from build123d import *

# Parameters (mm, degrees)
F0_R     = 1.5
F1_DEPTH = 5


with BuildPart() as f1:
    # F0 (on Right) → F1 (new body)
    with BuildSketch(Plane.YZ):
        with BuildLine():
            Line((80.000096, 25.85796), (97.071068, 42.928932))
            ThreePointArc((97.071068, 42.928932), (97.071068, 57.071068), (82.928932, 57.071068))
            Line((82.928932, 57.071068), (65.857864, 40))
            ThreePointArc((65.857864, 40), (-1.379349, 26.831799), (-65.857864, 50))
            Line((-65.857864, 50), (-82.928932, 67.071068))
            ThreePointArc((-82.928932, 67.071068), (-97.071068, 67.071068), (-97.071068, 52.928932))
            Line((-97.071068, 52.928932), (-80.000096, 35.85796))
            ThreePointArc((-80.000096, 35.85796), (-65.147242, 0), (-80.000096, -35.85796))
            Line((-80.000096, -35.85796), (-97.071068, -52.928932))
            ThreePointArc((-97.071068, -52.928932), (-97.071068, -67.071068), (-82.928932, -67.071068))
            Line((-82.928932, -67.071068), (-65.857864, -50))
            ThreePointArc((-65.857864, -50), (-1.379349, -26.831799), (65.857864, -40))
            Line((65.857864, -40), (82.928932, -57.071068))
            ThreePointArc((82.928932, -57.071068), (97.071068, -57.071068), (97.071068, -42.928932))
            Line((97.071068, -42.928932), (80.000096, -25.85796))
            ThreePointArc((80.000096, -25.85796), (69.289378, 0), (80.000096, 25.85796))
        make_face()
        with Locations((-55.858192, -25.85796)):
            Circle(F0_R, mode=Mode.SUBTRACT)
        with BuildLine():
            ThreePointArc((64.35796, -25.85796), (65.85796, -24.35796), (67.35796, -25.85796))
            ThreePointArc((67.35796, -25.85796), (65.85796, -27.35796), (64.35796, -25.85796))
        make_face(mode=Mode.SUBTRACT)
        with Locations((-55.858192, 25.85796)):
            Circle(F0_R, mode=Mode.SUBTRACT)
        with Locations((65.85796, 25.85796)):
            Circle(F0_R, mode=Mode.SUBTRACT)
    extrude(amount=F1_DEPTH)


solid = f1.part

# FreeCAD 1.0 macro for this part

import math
import FreeCAD as App
import Part
import Sketcher

V = App.Vector

doc = App.newDocument("Part")
body = doc.addObject("PartDesign::Body", "Body")

sketch1 = body.newObject("Sketcher::SketchObject", "Sketch")
sketch1.AttachmentSupport = (doc.getObject("YZ_Plane"), [""])
sketch1.MapMode = "FlatFace"
sketch1.addGeometry(Part.LineSegment(V(80, 25.9, 0), V(97.1, 42.9, 0)), False)
sketch1.addGeometry(Part.ArcOfCircle(Part.Circle(V(90, 50, 0), V(0, 0, 1), 10), math.radians(-45), math.radians(135)), False)
sketch1.addGeometry(Part.LineSegment(V(82.9, 57.1, 0), V(65.9, 40, 0)), False)
sketch1.addGeometry(Part.ArcOfCircle(Part.Circle(V(8.4, 155.3, 0), V(0, 0, 1), 128.8), math.radians(-125), math.radians(-63)), False)
sketch1.addGeometry(Part.LineSegment(V(-65.9, 50, 0), V(-82.9, 67.1, 0)), False)
sketch1.addGeometry(Part.ArcOfCircle(Part.Circle(V(-90, 60, 0), V(0, 0, 1), 10), math.radians(45), math.radians(225)), False)
sketch1.addGeometry(Part.LineSegment(V(-97.1, 52.9, 0), V(-80, 35.9, 0)), False)
sketch1.addGeometry(Part.ArcOfCircle(Part.Circle(V(-115.9, 0, 0), V(0, 0, 1), 50.7), math.radians(-45), math.radians(45)), False)
sketch1.addGeometry(Part.LineSegment(V(-80, -35.9, 0), V(-97.1, -52.9, 0)), False)
sketch1.addGeometry(Part.ArcOfCircle(Part.Circle(V(-90, -60, 0), V(0, 0, 1), 10), math.radians(135), math.radians(315)), False)
sketch1.addGeometry(Part.LineSegment(V(-82.9, -67.1, 0), V(-65.9, -50, 0)), False)
sketch1.addGeometry(Part.ArcOfCircle(Part.Circle(V(8.4, -155.3, 0), V(0, 0, 1), 128.8), math.radians(63), math.radians(125)), False)
sketch1.addGeometry(Part.LineSegment(V(65.9, -40, 0), V(82.9, -57.1, 0)), False)
sketch1.addGeometry(Part.ArcOfCircle(Part.Circle(V(90, -50, 0), V(0, 0, 1), 10), math.radians(-135), math.radians(45)), False)
sketch1.addGeometry(Part.LineSegment(V(97.1, -42.9, 0), V(80, -25.9, 0)), False)
sketch1.addGeometry(Part.ArcOfCircle(Part.Circle(V(105.9, 0, 0), V(0, 0, 1), 36.6), math.radians(135), math.radians(225)), False)
sketch1.addGeometry(Part.Circle(V(-55.9, -25.9, 0), V(0, 0, 1), 1.5), False)
sketch1.addGeometry(Part.Circle(V(65.9, -25.9, 0), V(0, 0, 1), 1.5), False)
sketch1.addGeometry(Part.Circle(V(-55.9, 25.9, 0), V(0, 0, 1), 1.5), False)
sketch1.addGeometry(Part.Circle(V(65.9, 25.9, 0), V(0, 0, 1), 1.5), False)
sketch1.addConstraint(Sketcher.Constraint("Tangent", 0, 2, 1, 1))
sketch1.addConstraint(Sketcher.Constraint("Tangent", 1, 2, 2, 1))
sketch1.addConstraint(Sketcher.Constraint("Coincident", 2, 2, 3, 2))
sketch1.addConstraint(Sketcher.Constraint("Coincident", 3, 1, 4, 1))
sketch1.addConstraint(Sketcher.Constraint("Tangent", 4, 2, 5, 1))
sketch1.addConstraint(Sketcher.Constraint("Tangent", 5, 2, 6, 1))
sketch1.addConstraint(Sketcher.Constraint("Tangent", 6, 2, 7, 2))
sketch1.addConstraint(Sketcher.Constraint("Tangent", 7, 1, 8, 1))
sketch1.addConstraint(Sketcher.Constraint("Tangent", 8, 2, 9, 1))
sketch1.addConstraint(Sketcher.Constraint("Tangent", 9, 2, 10, 1))
sketch1.addConstraint(Sketcher.Constraint("Coincident", 10, 2, 11, 2))
sketch1.addConstraint(Sketcher.Constraint("Coincident", 11, 1, 12, 1))
sketch1.addConstraint(Sketcher.Constraint("Tangent", 12, 2, 13, 1))
sketch1.addConstraint(Sketcher.Constraint("Tangent", 13, 2, 14, 1))
sketch1.addConstraint(Sketcher.Constraint("Tangent", 14, 2, 15, 2))
sketch1.addConstraint(Sketcher.Constraint("Tangent", 15, 1, 0, 1))
sketch1.addConstraint(Sketcher.Constraint("Equal", 1, 5))
sketch1.addConstraint(Sketcher.Constraint("Equal", 5, 9))
sketch1.addConstraint(Sketcher.Constraint("Equal", 3, 11))
sketch1.addConstraint(Sketcher.Constraint("Equal", 9, 13))
sketch1.addConstraint(Sketcher.Constraint("Equal", 16, 17))
sketch1.addConstraint(Sketcher.Constraint("Equal", 17, 18))
sketch1.addConstraint(Sketcher.Constraint("Equal", 18, 19))
sketch1.addConstraint(Sketcher.Constraint("Symmetric", 5, 3, 9, 3, -1))
sketch1.addConstraint(Sketcher.Constraint("Symmetric", 3, 3, 11, 3, -1))
sketch1.addConstraint(Sketcher.Constraint("Symmetric", 1, 3, 13, 3, -1))
sketch1.addConstraint(Sketcher.Constraint("Symmetric", 16, 3, 18, 3, -1))
sketch1.addConstraint(Sketcher.Constraint("Symmetric", 17, 3, 19, 3, -1))
sketch1.addConstraint(Sketcher.Constraint("PointOnObject", 7, 3, -1))
sketch1.addConstraint(Sketcher.Constraint("PointOnObject", 15, 3, -1))
sketch1.addConstraint(Sketcher.Constraint("Parallel", 0, 2))
sketch1.addConstraint(Sketcher.Constraint("Perpendicular", 2, 4))
sketch1.addConstraint(Sketcher.Constraint("Parallel", 4, 6))
sketch1.addConstraint(Sketcher.Constraint("Perpendicular", 6, 8))
sketch1.addConstraint(Sketcher.Constraint("Parallel", 8, 10))
sketch1.addConstraint(Sketcher.Constraint("Perpendicular", 10, 12))
sketch1.addConstraint(Sketcher.Constraint("Horizontal", 16, 3, 17, 3))
sketch1.addConstraint(Sketcher.Constraint("Horizontal", 1, 3, 3, 1))
sketch1.addConstraint(Sketcher.Constraint("Horizontal", 17, 3, 14, 2))
sketch1.addConstraint(Sketcher.Constraint("Equal", 2, 4))
sketch1.addConstraint(Sketcher.Constraint("Equal", 0, 6))
sketch1.addConstraint(Sketcher.Constraint("Diameter", 16, 3.0))
sketch1.addConstraint(Sketcher.Constraint("Radius", 1, 10.0))
sketch1.addConstraint(Sketcher.Constraint("DistanceX", -1, 1, 1, 3, 90.0))
sketch1.addConstraint(Sketcher.Constraint("DistanceY", -1, 1, 1, 3, 50.0))
sketch1.addConstraint(Sketcher.Constraint("DistanceX", 5, 3, -1, 1, 90.0))
sketch1.addConstraint(Sketcher.Constraint("DistanceY", -1, 1, 5, 3, 60.0))
sketch1.addConstraint(Sketcher.Constraint("Radius", 7, 50.710812))
sketch1.addConstraint(Sketcher.Constraint("Radius", 3, 128.817756))
sketch1.addConstraint(Sketcher.Constraint("DistanceX", -1, 1, 17, 3, 65.85796))
sketch1.addConstraint(Sketcher.Constraint("DistanceX", 7, 3, 16, 3, 59.999862))
pad1 = body.newObject("PartDesign::Pad", "Pad")
pad1.Profile = sketch1
pad1.Length = 5

doc.recompute()
